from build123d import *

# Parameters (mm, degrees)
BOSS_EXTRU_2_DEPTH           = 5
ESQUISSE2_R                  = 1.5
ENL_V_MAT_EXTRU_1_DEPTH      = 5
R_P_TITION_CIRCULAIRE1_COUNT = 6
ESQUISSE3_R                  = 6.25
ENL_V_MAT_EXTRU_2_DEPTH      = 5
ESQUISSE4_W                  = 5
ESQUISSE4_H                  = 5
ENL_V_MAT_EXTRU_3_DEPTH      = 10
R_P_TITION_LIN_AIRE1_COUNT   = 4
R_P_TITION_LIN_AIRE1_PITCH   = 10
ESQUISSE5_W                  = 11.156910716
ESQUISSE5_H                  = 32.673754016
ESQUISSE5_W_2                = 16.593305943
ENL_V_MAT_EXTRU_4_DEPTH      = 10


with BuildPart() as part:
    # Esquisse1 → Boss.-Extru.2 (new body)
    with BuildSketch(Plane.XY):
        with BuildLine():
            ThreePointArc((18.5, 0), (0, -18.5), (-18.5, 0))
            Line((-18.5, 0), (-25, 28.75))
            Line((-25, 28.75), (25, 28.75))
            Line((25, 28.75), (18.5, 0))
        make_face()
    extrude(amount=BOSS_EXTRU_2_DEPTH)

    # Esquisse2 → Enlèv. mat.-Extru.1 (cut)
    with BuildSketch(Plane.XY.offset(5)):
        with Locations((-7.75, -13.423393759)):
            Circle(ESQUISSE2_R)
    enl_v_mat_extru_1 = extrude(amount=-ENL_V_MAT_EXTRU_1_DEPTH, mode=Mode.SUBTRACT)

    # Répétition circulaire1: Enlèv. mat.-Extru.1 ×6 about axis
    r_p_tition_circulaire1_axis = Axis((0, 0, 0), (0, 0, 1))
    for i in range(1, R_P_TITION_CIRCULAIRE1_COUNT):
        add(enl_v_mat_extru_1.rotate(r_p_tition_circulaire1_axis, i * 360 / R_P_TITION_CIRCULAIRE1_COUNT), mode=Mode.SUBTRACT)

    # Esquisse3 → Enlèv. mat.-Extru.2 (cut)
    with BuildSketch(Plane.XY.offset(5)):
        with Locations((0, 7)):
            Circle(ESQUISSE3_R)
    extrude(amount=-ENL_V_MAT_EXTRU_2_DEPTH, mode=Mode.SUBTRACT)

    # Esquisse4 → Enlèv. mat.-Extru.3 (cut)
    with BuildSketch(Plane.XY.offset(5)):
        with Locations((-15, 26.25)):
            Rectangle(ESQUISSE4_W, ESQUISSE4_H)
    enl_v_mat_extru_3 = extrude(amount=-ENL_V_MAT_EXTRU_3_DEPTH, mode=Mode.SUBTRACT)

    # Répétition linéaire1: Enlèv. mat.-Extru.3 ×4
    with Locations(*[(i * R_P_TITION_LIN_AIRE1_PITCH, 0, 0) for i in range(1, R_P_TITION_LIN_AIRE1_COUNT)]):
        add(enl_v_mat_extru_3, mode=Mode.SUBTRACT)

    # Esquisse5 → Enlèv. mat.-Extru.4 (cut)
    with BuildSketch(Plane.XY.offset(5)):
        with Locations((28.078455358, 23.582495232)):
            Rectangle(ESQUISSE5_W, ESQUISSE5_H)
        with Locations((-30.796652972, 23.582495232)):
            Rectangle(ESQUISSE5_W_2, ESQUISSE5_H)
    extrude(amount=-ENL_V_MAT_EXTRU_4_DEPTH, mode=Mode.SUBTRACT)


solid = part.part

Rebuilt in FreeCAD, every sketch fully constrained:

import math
import FreeCAD as App
import Part
import Sketcher
from FreeCAD import Vector


def add_polygon(sketch, points):
    """Adds a closed chain of lines whose ends are joined by coincident constraints."""
    first, n = sketch.GeometryCount, len(points)
    for a, b in zip(points, points[1:] + points[:1]):
        sketch.addGeometry(Part.LineSegment(App.Vector(*a, 0), App.Vector(*b, 0)), False)
    for i in range(n):
        sketch.addConstraint(Sketcher.Constraint("Coincident", first + i, 2, first + (i + 1) % n, 1))

doc = App.newDocument("Part")
body = doc.addObject("PartDesign::Body", "Body")

# Sketch on XY plane
sketch1 = body.newObject("Sketcher::SketchObject", "Sketch")
sketch1.AttachmentSupport = (doc.getObject("XY_Plane"), [""])
sketch1.MapMode = "FlatFace"
sketch1.addGeometry([
    Part.ArcOfCircle(Part.Circle(Vector(0, 0, 0), Vector(0, 0, 1), 18), math.radians(180), math.radians(360)),
    Part.LineSegment(Vector(18, 0, 0), Vector(25, 29, 0)),
    Part.LineSegment(Vector(25, 29, 0), Vector(-25, 29, 0)),
    Part.LineSegment(Vector(-25, 29, 0), Vector(-18, 0, 0)),
], False)
sketch1.addConstraint([
    Sketcher.Constraint("Coincident", 0, 2, 1, 1),
    Sketcher.Constraint("Coincident", 1, 2, 2, 1),
    Sketcher.Constraint("Coincident", 2, 2, 3, 1),
    Sketcher.Constraint("Coincident", 3, 2, 0, 1),
    Sketcher.Constraint("Horizontal", 2),
    Sketcher.Constraint("Coincident", 0, 3, -1, 1),
    Sketcher.Constraint("PointOnObject", 0, 2, -1),
    Sketcher.Constraint("PointOnObject", 3, 2, -1),
    Sketcher.Constraint("Equal", 1, 3),
    Sketcher.Constraint("Radius", 0, 18.5),
    Sketcher.Constraint("DistanceX", 2, 2, 2, 1, 50.0),
    Sketcher.Constraint("DistanceY", -1, 1, 1, 2, 28.75),
])
pad1 = body.newObject("PartDesign::Pad", "Pad")
pad1.Profile = sketch1
pad1.Length = 5

# Sketch on XY plane
sketch2 = body.newObject("Sketcher::SketchObject", "Sketch001")
sketch2.AttachmentSupport = (doc.getObject("XY_Plane"), [""])
sketch2.MapMode = "FlatFace"
sketch2.AttachmentOffset = App.Placement(Vector(0, 0, 5), App.Rotation())
sketch2.addGeometry(Part.Circle(Vector(-7.8, -13.4, 0), Vector(0, 0, 1), 1.5), False)
sketch2.addConstraint([
    Sketcher.Constraint("Diameter", 0, 3.0),
    Sketcher.Constraint("DistanceX", 0, 3, -1, 1, 7.75),
    Sketcher.Constraint("DistanceY", 0, 3, -1, 1, 13.423394),
])
pocket1 = body.newObject("PartDesign::Pocket", "Pocket")
pocket1.Profile = sketch2
pocket1.Length = 5
doc.recompute()

polarpattern = body.newObject("PartDesign::PolarPattern", "PolarPattern")
polarpattern.Originals = [pocket1]
polarpattern.Axis = (doc.getObject("Z_Axis"), [""])
polarpattern.Angle = 360
polarpattern.Occurrences = 6
body.Tip = polarpattern

# Sketch on XY plane
sketch3 = body.newObject("Sketcher::SketchObject", "Sketch002")
sketch3.AttachmentSupport = (doc.getObject("XY_Plane"), [""])
sketch3.MapMode = "FlatFace"
sketch3.AttachmentOffset = App.Placement(Vector(0, 0, 5), App.Rotation())
sketch3.addGeometry(Part.Circle(Vector(0, 7, 0), Vector(0, 0, 1), 6), False)
sketch3.addConstraint([
    Sketcher.Constraint("PointOnObject", 0, 3, -2),
    Sketcher.Constraint("Diameter", 0, 12.5),
    Sketcher.Constraint("DistanceY", -1, 1, 0, 3, 7.0),
])
pocket2 = body.newObject("PartDesign::Pocket", "Pocket001")
pocket2.Profile = sketch3
pocket2.Length = 5

# Sketch on XY plane
sketch4 = body.newObject("Sketcher::SketchObject", "Sketch003")
sketch4.AttachmentSupport = (doc.getObject("XY_Plane"), [""])
sketch4.MapMode = "FlatFace"
sketch4.AttachmentOffset = App.Placement(Vector(0, 0, 5), App.Rotation())
add_polygon(sketch4, [(-18, 29), (-18, 24), (-12, 24), (-12, 29)])  # lines 0-3
sketch4.addConstraint([
    Sketcher.Constraint("Vertical", 0),
    Sketcher.Constraint("Horizontal", 1),
    Sketcher.Constraint("Vertical", 2),
    Sketcher.Constraint("Horizontal", 3),
    Sketcher.Constraint("Equal", 3, 0),
    Sketcher.Constraint("DistanceX", 1, 1, 1, 2, 5.0),
    Sketcher.Constraint("DistanceX", 0, 2, -1, 1, 17.5),
    Sketcher.Constraint("DistanceY", -1, 1, 0, 2, 23.75),
])
pocket3 = body.newObject("PartDesign::Pocket", "Pocket002")
pocket3.Profile = sketch4
pocket3.Length = 10
doc.recompute()

linearpattern = body.newObject("PartDesign::LinearPattern", "LinearPattern")
linearpattern.Originals = [pocket3]
linearpattern.Direction = (doc.getObject("X_Axis"), [""])
linearpattern.Mode = "offset"
linearpattern.Offset = 10
linearpattern.Occurrences = 4
body.Tip = linearpattern

# Sketch on XY plane
sketch5 = body.newObject("Sketcher::SketchObject", "Sketch004")
sketch5.AttachmentSupport = (doc.getObject("XY_Plane"), [""])
sketch5.MapMode = "FlatFace"
sketch5.AttachmentOffset = App.Placement(Vector(0, 0, 5), App.Rotation())
add_polygon(sketch5, [(22, 40), (22, 7), (34, 7), (34, 40)])  # lines 0-3
add_polygon(sketch5, [(-39, 40), (-39, 7), (-23, 7), (-23, 40)])  # lines 4-7
sketch5.addConstraint([
    Sketcher.Constraint("Vertical", 0),
    Sketcher.Constraint("Horizontal", 1),
    Sketcher.Constraint("Vertical", 2),
    Sketcher.Constraint("Horizontal", 3),
    Sketcher.Constraint("Vertical", 4),
    Sketcher.Constraint("Horizontal", 5),
    Sketcher.Constraint("Vertical", 6),
    Sketcher.Constraint("Horizontal", 7),
    Sketcher.Constraint("Symmetric", 0, 2, 5, 2, -2),
    Sketcher.Constraint("Horizontal", 3, 2, 6, 2),
    Sketcher.Constraint("DistanceX", 5, 2, 0, 2, 45.0),
    Sketcher.Constraint("DistanceX", 1, 1, 1, 2, 11.156911),
    Sketcher.Constraint("DistanceX", 5, 1, 5, 2, 16.593306),
    Sketcher.Constraint("DistanceY", 0, 2, 0, 1, 32.673754),
    Sketcher.Constraint("DistanceY", -1, 1, 0, 2, 7.245618),
])
pocket4 = body.newObject("PartDesign::Pocket", "Pocket003")
pocket4.Profile = sketch5
pocket4.Length = 10

doc.recompute()
